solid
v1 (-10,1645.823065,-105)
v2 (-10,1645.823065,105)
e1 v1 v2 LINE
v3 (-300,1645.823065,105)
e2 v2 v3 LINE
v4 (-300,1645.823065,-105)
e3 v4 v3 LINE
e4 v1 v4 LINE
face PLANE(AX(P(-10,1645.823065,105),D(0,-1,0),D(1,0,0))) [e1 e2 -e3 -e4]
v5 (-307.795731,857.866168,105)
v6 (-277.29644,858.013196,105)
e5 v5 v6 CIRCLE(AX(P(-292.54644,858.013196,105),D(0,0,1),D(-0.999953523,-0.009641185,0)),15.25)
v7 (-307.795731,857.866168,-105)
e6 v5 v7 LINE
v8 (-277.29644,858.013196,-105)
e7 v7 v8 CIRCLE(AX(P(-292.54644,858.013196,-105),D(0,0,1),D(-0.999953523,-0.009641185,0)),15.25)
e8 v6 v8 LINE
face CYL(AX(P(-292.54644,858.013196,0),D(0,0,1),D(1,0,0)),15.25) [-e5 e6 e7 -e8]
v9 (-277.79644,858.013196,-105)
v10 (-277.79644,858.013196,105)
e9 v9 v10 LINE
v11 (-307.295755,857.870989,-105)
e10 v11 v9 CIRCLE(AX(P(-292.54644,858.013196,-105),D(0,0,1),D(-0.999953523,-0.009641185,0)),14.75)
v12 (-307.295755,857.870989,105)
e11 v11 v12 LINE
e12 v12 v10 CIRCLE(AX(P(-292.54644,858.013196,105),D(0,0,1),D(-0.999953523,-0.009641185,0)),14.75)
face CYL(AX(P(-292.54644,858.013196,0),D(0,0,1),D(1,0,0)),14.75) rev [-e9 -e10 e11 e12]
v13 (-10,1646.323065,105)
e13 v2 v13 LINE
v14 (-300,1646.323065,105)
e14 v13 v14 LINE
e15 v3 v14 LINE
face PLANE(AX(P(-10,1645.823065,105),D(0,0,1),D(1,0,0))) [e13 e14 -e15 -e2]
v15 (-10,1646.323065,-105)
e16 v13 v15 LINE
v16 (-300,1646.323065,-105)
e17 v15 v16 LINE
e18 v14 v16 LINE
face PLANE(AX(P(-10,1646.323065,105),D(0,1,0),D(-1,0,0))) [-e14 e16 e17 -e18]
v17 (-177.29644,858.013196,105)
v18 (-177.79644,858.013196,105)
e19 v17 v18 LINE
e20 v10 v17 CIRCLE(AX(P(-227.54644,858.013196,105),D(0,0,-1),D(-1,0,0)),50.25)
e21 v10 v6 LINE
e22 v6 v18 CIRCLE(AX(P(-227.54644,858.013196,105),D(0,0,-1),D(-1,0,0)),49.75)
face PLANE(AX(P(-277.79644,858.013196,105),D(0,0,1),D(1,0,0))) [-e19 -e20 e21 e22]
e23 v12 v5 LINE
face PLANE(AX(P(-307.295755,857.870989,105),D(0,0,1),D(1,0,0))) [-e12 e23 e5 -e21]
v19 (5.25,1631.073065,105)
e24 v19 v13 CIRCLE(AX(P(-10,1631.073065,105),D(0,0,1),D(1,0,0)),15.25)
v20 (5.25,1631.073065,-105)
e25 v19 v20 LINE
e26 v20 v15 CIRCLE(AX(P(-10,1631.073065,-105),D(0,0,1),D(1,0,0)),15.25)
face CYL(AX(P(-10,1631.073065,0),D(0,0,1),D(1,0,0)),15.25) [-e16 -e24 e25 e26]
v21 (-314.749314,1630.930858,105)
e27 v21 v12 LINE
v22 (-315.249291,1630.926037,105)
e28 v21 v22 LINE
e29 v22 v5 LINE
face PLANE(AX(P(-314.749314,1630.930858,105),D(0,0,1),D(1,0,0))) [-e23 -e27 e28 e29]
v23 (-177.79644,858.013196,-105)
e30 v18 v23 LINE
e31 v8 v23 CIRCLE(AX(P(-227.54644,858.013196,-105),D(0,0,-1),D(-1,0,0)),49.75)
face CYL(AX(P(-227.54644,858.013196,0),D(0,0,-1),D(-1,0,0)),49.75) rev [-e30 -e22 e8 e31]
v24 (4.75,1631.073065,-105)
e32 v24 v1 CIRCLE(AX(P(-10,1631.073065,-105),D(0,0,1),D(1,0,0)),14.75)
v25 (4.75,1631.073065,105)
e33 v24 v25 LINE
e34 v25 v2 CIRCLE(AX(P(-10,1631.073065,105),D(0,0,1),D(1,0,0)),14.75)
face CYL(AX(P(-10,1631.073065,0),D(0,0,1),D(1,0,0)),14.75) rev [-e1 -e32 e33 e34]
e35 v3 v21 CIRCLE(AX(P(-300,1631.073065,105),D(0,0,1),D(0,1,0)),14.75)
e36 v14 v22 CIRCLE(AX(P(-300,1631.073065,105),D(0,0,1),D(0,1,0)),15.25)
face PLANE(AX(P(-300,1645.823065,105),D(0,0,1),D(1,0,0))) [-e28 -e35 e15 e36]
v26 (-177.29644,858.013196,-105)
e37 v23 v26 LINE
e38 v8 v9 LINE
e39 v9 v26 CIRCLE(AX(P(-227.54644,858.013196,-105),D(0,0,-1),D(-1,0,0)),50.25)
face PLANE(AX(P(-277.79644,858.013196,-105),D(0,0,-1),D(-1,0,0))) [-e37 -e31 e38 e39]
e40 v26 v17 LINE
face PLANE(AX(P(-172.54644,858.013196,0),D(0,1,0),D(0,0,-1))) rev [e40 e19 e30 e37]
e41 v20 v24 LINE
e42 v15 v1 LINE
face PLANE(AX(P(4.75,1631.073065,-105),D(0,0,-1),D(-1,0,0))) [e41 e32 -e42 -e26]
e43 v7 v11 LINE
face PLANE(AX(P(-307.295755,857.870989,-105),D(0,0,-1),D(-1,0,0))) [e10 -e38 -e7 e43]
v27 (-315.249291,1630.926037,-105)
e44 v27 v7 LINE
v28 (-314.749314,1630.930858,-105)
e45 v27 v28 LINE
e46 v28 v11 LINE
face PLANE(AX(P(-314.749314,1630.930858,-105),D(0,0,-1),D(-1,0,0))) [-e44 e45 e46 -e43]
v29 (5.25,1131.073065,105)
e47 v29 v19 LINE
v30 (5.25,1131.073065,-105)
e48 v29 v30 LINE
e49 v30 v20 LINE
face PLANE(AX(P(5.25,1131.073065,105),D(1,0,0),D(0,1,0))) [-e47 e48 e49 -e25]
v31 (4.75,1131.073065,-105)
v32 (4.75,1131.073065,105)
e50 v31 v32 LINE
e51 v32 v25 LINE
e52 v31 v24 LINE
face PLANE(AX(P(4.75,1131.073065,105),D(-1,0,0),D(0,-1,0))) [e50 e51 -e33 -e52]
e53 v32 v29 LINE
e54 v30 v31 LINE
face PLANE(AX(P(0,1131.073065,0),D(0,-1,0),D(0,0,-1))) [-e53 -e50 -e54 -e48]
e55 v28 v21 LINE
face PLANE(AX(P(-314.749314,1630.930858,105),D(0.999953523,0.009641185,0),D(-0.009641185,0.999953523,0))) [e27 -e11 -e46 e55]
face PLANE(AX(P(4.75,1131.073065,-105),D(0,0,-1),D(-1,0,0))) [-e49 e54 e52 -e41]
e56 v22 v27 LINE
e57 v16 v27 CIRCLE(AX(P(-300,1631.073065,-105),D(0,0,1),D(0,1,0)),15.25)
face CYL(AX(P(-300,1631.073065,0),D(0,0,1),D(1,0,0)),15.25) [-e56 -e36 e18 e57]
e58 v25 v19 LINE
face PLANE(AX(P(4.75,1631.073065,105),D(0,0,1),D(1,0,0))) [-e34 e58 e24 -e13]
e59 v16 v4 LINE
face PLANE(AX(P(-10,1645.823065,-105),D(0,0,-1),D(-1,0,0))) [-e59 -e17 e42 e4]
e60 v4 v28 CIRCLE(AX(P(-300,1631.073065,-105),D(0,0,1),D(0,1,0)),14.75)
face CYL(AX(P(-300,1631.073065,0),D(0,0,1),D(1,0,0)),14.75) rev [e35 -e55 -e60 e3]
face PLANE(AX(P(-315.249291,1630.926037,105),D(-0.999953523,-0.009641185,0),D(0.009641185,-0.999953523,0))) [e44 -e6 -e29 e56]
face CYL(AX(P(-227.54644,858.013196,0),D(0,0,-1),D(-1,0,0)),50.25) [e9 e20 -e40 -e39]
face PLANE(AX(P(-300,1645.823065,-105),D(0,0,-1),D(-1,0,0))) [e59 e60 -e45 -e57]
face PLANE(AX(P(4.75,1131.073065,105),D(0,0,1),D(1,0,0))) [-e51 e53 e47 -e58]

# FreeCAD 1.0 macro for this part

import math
import FreeCAD as App
import Part
import Sketcher
from FreeCAD import Vector
Q = App.Units.Quantity


def add_polygon(sketch, points):
    """Adds a closed chain of lines whose ends are joined by coincident constraints."""
    first, n = sketch.GeometryCount, len(points)
    for a, b in zip(points, points[1:] + points[:1]):
        sketch.addGeometry(Part.LineSegment(App.Vector(*a, 0), App.Vector(*b, 0)), False)
    for i in range(n):
        sketch.addConstraint(Sketcher.Constraint("Coincident", first + i, 2, first + (i + 1) % n, 1))

doc = App.newDocument("Part")
params = doc.addObject("Spreadsheet::Sheet", "Params")
for row, (alias, value) in enumerate([
    ("sketch1_height", "210 mm"),
    ("sketch1_width", "0.5 mm"),
    ("sketch2_radius", "15 mm"),
    ("sketch2_radius2", "50 mm"),
    ("sketch2_width", "290 mm"),
    ("sketch2_height", "500 mm"),
], start=1):
    params.set(f"A{row}", alias)
    params.set(f"B{row}", "=" + value)
    params.setAlias(f"B{row}", alias)

body = doc.addObject("PartDesign::Body", "Body")

# Sketch on XZ plane
sketch1 = doc.addObject("Sketcher::SketchObject", "Sketch")
body.addObject(sketch1)
sketch1.AttachmentSupport = (doc.XZ_Plane, [""])
sketch1.MapMode = "FlatFace"
sketch1.AttachmentOffset = App.Placement(Vector(0, 0, -1131.073065), App.Rotation())
add_polygon(sketch1, [(4.75, -105), (4.75, 105), (5.25, 105), (5.25, -105)])  # lines 0-3
sketch1.addConstraint([
    Sketcher.Constraint("Vertical", 0),
    Sketcher.Constraint("Horizontal", 1),
    Sketcher.Constraint("Vertical", 2),
    Sketcher.Constraint("Horizontal", 3),
    Sketcher.Constraint("DistanceY", 0, 1, 0, 2, Q("210 mm")),
    Sketcher.Constraint("DistanceX", 1, 1, 1, 2, Q("0.5 mm")),
    Sketcher.Constraint("DistanceY", -1, 1, 0, 2, Q("105 mm")),
    Sketcher.Constraint("DistanceX", -1, 1, 0, 2, Q("4.75 mm")),
])
sketch1.setExpression("Constraints[8]", "Params.sketch1_height")
sketch1.setExpression("Constraints[9]", "Params.sketch1_width")

# Sketch on XY plane
sketch2 = doc.addObject("Sketcher::SketchObject", "Sketch001")
body.addObject(sketch2)
sketch2.AttachmentSupport = (doc.XY_Plane, [""])
sketch2.MapMode = "FlatFace"
sketch2.addGeometry([
    Part.LineSegment(Vector(5, 1131.073065, 0), Vector(5, 1631.073065, 0)),  # 0
    Part.ArcOfCircle(Part.Circle(Vector(-10, 1631.073065, 0), Vector(0, 0, 1), 15), math.radians(0), math.radians(90)),  # 1
    Part.LineSegment(Vector(-10, 1646.073065, 0), Vector(-300, 1646.073065, 0)),  # 2
    Part.ArcOfCircle(Part.Circle(Vector(-300, 1631.073065, 0), Vector(0, 0, 1), 15), math.radians(90), math.radians(180.552408)),  # 3
    Part.LineSegment(Vector(-314.999303, 1630.928447, 0), Vector(-307.545743, 857.868579, 0)),  # 4
    Part.ArcOfCircle(Part.Circle(Vector(-292.54644, 858.013196, 0), Vector(0, 0, 1), 15), math.radians(-179.447592), math.radians(0)),  # 5
    Part.ArcOfCircle(Part.Circle(Vector(-227.54644, 858.013196, 0), Vector(0, 0, 1), 50), math.radians(0), math.radians(180)),  # 6
], False)
sketch2.addConstraint([
    Sketcher.Constraint("Tangent", 0, 2, 1, 1),
    Sketcher.Constraint("Tangent", 1, 2, 2, 1),
    Sketcher.Constraint("Tangent", 2, 2, 3, 1),
    Sketcher.Constraint("Tangent", 3, 2, 4, 1),
    Sketcher.Constraint("Tangent", 4, 2, 5, 1),
    Sketcher.Constraint("Tangent", 5, 2, 6, 2),
    Sketcher.Constraint("Vertical", 0),
    Sketcher.Constraint("Horizontal", 2),
    Sketcher.Constraint("Equal", 1, 3),
    Sketcher.Constraint("Equal", 3, 5),
    Sketcher.Constraint("Horizontal", 5, 3, 6, 3),
    Sketcher.Constraint("Horizontal", 5, 2, 6, 1),
    Sketcher.Constraint("Radius", 1, Q("15 mm")),
    Sketcher.Constraint("Radius", 6, Q("50 mm")),
    Sketcher.Constraint("DistanceX", 2, 2, 2, 1, Q("290 mm")),
    Sketcher.Constraint("DistanceY", 0, 1, 0, 2, Q("500 mm")),
    Sketcher.Constraint("DistanceX", 1, 3, -1, 1, Q("10 mm")),
    Sketcher.Constraint("Distance", 4, Q("773.0958 mm")),
    Sketcher.Constraint("DistanceX", 5, 3, -1, 1, Q("292.54644 mm")),
    Sketcher.Constraint("DistanceY", -1, 1, 4, 2, Q("857.868579 mm")),
])
sketch2.setExpression("Constraints[12]", "Params.sketch2_radius")
sketch2.setExpression("Constraints[13]", "Params.sketch2_radius2")
sketch2.setExpression("Constraints[14]", "Params.sketch2_width")
sketch2.setExpression("Constraints[15]", "Params.sketch2_height")
doc.recompute()

additivepipe = doc.addObject("PartDesign::AdditivePipe", "AdditivePipe")
body.addObject(additivepipe)
additivepipe.Profile = sketch1
additivepipe.Spine = (sketch2, ["Edge1", "Edge2", "Edge3", "Edge4", "Edge5", "Edge6", "Edge7"])

doc.recompute()
